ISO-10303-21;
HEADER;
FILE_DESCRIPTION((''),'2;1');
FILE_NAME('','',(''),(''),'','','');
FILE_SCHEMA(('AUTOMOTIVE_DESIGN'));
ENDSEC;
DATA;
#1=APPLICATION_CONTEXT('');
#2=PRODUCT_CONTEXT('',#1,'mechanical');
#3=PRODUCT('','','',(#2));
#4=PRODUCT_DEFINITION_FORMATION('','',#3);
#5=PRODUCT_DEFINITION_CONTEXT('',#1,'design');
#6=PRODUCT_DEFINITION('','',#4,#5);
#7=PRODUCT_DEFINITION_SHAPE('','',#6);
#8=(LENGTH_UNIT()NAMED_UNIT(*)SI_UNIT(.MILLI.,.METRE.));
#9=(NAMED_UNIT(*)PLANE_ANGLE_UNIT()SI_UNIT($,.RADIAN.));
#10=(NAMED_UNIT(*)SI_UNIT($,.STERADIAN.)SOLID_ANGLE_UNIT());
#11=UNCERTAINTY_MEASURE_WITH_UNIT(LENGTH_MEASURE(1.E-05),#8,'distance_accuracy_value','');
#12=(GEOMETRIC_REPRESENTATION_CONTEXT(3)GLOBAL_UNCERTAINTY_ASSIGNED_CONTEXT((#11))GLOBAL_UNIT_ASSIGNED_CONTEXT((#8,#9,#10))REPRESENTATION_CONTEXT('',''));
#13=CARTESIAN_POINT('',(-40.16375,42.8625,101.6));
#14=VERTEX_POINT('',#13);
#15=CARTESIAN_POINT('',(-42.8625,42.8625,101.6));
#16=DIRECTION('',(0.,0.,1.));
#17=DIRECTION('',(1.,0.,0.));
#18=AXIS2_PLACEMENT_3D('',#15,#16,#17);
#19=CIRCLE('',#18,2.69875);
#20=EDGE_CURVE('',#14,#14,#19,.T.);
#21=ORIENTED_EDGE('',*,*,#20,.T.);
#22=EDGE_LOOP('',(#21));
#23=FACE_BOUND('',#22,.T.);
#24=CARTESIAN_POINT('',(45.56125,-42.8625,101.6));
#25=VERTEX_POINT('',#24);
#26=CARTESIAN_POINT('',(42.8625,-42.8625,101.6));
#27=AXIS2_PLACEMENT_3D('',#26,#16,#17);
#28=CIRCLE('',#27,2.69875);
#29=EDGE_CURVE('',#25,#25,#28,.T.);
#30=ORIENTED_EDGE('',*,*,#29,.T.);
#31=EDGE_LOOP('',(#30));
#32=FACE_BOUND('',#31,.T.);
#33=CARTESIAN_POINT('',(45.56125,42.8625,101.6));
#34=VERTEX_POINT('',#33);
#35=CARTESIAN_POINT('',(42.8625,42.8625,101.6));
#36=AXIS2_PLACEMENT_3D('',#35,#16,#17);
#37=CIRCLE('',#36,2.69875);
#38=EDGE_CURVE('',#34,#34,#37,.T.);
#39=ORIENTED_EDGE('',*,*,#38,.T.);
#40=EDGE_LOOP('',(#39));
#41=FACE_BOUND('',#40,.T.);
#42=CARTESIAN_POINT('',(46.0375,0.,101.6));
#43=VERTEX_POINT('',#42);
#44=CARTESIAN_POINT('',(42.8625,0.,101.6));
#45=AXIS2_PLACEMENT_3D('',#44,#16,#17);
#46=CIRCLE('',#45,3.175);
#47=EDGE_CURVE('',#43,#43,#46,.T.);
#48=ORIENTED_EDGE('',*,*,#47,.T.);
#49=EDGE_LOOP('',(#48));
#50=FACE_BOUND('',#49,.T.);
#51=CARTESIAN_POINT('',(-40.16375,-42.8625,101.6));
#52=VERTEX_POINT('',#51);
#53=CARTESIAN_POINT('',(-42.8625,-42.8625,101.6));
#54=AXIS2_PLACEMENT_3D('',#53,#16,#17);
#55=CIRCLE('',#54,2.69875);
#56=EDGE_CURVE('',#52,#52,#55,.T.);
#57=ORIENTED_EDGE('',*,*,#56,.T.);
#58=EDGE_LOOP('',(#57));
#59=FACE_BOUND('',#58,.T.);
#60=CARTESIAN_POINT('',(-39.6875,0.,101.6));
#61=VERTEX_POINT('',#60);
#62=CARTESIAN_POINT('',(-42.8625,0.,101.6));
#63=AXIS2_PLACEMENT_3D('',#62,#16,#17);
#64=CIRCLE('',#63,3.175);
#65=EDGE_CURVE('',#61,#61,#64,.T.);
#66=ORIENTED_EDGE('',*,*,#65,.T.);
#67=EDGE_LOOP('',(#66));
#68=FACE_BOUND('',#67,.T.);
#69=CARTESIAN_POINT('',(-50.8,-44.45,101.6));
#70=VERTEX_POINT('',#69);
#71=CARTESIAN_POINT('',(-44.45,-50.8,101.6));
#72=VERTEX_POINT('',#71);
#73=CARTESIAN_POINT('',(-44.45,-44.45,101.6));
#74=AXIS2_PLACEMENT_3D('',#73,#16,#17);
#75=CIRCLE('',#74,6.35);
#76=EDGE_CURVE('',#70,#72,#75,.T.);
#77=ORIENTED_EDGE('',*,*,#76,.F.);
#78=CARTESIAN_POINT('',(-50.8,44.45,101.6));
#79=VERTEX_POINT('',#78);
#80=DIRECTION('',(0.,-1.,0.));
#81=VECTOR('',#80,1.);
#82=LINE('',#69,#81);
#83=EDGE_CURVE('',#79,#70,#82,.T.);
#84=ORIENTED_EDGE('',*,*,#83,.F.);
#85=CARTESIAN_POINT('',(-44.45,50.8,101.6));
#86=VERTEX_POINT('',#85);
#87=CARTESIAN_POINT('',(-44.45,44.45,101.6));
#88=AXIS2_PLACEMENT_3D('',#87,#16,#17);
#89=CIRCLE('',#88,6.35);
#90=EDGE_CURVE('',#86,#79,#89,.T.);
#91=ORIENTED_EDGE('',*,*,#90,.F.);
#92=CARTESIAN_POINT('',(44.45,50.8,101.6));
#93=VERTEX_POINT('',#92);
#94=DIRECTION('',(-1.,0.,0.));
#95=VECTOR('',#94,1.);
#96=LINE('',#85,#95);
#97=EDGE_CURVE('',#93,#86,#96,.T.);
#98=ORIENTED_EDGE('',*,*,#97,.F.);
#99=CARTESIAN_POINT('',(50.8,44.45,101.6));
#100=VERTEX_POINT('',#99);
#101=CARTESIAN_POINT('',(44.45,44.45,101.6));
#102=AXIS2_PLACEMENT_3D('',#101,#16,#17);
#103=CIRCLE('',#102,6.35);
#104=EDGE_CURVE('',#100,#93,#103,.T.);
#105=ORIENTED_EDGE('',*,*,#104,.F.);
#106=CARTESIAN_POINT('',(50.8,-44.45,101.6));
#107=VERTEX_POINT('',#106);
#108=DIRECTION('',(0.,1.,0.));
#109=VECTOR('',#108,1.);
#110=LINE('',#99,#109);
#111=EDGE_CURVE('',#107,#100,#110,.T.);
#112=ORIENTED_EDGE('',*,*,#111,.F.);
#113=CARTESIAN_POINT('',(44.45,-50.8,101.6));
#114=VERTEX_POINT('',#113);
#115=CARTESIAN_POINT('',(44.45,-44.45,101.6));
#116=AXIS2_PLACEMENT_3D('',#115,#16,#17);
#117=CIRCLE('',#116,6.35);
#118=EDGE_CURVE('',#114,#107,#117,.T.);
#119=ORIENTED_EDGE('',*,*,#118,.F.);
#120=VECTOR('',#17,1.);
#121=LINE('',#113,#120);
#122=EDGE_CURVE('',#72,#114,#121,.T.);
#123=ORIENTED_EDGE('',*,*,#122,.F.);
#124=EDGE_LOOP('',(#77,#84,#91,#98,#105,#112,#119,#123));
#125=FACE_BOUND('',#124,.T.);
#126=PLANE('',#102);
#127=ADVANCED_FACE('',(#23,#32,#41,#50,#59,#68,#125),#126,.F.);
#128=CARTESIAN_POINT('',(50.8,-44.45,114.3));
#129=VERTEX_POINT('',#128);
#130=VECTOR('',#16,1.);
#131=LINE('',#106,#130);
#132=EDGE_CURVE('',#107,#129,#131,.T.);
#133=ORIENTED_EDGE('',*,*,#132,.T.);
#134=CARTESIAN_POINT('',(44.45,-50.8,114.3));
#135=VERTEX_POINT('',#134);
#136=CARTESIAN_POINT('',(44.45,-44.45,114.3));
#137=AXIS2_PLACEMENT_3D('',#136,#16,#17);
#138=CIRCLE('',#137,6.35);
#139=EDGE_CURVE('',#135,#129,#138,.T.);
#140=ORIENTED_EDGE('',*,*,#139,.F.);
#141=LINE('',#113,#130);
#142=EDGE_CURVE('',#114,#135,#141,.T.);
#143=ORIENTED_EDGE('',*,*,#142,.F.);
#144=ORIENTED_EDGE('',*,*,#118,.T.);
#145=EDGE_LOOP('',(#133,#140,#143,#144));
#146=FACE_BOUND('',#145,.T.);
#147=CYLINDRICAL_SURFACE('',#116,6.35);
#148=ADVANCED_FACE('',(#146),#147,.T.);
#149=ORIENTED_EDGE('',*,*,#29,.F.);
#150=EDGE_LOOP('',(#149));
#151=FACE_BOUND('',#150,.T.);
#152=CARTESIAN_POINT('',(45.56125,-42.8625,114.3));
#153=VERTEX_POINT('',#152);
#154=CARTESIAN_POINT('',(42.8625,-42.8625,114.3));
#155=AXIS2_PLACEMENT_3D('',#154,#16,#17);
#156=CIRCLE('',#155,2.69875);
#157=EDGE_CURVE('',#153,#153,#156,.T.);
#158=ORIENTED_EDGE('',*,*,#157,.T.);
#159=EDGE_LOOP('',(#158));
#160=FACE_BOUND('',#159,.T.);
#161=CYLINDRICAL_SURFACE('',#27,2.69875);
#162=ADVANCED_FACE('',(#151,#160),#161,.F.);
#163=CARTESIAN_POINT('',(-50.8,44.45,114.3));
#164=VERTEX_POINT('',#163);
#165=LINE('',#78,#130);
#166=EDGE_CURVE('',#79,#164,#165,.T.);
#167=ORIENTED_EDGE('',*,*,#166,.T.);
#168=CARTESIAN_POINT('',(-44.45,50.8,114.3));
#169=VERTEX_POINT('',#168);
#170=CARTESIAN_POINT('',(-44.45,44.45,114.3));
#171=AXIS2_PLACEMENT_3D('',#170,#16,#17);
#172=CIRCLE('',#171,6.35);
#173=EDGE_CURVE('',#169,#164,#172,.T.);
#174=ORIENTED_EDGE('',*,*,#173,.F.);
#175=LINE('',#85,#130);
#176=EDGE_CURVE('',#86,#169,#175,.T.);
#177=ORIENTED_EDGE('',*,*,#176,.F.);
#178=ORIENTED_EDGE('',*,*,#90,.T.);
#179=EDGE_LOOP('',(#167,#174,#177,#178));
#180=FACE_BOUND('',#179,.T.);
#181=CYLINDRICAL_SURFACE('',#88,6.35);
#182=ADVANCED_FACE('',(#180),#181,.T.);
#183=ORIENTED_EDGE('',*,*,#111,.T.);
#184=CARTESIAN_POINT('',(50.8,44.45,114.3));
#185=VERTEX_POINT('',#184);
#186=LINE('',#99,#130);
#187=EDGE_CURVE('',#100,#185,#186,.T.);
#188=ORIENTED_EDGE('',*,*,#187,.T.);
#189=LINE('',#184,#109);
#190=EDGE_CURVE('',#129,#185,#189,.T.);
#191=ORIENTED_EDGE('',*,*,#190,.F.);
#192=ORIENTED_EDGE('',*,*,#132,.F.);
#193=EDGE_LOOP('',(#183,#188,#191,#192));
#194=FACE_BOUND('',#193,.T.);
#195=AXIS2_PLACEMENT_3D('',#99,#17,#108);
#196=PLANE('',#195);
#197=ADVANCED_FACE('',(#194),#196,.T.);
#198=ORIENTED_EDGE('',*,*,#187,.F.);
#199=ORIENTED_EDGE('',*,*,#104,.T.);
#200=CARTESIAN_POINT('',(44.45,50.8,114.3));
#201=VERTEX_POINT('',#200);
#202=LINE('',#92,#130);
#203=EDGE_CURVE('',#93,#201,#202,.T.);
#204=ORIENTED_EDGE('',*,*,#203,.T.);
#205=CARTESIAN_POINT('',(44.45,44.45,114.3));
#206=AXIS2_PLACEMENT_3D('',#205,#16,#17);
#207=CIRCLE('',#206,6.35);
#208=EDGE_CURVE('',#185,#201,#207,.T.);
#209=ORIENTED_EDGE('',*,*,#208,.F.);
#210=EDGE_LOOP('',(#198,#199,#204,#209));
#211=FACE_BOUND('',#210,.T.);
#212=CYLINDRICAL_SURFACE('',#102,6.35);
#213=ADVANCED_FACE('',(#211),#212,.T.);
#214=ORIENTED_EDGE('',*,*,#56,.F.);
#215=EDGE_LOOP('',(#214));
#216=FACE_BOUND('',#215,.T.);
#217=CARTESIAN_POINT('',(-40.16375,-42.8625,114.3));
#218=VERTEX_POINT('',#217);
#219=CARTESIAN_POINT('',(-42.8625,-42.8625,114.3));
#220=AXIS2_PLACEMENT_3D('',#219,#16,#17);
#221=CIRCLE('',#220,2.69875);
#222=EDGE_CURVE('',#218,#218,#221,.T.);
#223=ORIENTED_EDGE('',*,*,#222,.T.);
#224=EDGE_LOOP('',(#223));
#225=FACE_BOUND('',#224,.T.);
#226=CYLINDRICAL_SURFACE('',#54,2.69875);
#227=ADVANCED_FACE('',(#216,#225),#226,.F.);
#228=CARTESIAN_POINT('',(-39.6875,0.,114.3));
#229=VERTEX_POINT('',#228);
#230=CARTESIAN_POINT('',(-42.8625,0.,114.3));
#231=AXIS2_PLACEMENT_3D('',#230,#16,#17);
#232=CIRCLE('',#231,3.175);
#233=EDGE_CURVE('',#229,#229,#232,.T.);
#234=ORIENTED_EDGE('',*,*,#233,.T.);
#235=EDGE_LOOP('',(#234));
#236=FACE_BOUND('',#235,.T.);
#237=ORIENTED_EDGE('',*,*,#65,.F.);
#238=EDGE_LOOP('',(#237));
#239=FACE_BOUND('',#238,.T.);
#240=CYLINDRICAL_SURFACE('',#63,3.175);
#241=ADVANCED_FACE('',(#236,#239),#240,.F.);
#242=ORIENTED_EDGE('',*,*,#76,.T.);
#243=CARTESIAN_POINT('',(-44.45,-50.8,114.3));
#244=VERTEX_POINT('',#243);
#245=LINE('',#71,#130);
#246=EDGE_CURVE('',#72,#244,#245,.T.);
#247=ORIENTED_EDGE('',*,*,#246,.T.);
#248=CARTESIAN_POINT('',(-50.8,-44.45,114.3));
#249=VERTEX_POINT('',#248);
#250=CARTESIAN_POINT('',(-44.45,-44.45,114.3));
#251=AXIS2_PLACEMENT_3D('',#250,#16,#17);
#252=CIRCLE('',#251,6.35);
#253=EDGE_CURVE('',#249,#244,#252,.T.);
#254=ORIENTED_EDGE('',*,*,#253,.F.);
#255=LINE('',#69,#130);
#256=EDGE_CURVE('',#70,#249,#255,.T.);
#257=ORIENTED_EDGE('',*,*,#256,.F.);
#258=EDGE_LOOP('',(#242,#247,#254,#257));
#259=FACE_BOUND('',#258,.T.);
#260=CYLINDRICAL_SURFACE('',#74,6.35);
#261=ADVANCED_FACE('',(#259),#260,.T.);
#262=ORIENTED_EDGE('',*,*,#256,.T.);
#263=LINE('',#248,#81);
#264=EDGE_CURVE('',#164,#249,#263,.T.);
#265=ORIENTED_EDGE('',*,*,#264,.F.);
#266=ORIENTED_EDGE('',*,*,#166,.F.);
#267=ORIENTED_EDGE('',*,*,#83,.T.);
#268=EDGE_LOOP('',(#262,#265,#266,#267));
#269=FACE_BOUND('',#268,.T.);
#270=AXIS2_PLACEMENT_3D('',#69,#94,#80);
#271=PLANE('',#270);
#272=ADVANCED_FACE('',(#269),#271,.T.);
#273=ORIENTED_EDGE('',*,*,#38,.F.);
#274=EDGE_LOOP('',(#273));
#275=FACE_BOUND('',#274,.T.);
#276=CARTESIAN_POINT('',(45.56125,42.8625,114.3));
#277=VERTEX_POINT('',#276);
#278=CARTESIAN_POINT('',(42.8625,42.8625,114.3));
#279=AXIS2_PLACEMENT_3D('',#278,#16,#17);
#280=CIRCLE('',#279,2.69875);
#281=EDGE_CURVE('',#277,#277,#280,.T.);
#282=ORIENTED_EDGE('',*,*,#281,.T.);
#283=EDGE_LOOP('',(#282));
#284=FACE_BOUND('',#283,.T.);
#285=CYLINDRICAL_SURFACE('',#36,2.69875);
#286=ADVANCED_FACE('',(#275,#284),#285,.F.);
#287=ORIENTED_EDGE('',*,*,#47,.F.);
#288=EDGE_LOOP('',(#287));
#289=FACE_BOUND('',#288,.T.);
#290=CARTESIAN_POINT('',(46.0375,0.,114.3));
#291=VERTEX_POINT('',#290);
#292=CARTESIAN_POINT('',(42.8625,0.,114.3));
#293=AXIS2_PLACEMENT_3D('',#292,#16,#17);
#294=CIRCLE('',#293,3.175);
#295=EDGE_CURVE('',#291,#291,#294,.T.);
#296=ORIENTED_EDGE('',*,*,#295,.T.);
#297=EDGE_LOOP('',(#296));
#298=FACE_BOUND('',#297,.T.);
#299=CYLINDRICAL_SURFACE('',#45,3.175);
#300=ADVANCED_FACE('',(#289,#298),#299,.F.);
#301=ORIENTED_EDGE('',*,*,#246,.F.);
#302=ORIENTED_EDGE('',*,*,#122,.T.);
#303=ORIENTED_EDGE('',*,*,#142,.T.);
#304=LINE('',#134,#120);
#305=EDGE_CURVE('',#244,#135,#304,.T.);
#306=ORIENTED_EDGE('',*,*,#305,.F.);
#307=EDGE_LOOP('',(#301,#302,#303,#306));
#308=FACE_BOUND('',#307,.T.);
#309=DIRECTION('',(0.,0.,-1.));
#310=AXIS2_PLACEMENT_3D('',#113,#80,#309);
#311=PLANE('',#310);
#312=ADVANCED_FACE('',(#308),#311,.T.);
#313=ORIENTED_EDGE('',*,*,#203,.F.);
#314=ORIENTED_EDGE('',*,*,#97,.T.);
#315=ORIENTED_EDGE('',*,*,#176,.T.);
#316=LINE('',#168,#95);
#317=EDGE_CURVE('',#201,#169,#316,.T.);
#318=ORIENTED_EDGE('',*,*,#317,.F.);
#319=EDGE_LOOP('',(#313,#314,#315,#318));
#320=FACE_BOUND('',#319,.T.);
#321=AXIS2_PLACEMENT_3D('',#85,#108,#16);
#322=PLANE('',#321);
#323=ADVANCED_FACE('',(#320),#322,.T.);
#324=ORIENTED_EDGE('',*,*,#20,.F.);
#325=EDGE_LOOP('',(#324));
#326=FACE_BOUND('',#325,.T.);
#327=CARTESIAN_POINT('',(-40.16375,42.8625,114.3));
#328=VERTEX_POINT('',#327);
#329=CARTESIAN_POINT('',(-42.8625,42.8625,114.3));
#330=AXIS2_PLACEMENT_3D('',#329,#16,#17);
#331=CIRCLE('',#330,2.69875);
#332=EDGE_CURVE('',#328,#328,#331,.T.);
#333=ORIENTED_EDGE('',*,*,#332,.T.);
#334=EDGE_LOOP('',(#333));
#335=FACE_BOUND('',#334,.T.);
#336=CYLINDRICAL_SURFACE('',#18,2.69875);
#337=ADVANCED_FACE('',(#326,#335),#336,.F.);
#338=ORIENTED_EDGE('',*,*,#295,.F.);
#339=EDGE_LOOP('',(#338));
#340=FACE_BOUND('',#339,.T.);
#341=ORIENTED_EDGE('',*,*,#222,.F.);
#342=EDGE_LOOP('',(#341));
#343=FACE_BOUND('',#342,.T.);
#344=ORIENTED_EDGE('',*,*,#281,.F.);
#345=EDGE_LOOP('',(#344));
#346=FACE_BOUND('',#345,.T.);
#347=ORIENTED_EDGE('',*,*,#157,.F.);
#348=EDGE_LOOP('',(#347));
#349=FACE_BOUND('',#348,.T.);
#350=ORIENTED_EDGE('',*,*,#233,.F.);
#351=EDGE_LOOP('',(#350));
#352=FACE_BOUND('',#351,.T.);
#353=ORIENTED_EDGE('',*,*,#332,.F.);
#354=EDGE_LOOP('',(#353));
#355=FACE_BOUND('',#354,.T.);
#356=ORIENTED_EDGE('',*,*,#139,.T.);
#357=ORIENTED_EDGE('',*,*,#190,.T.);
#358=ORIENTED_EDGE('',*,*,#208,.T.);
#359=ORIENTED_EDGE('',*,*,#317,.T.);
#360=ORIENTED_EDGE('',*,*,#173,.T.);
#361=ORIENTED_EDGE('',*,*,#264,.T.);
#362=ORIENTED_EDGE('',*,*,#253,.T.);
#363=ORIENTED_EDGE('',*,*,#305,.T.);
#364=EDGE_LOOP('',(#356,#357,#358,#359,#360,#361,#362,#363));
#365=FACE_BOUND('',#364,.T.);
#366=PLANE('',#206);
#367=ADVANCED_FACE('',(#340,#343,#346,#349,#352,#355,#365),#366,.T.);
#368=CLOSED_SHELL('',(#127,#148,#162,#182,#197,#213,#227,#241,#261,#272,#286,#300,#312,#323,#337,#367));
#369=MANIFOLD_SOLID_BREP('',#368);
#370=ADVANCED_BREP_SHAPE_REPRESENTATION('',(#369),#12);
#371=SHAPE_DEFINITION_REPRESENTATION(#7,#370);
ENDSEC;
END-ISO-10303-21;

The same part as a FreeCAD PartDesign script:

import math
import FreeCAD as App
import Part
import Sketcher
Q = App.Units.Quantity

doc = App.newDocument("Part")
body = doc.addObject("PartDesign::Body", "Body")

sketch1 = body.newObject("Sketcher::SketchObject", "Sketch")
sketch1.AttachmentSupport = (doc.getObject("XY_Plane"), [""])
sketch1.MapMode = "FlatFace"
sketch1.AttachmentOffset = App.Placement(App.Vector(0, 0, 4.5 * 25.4), App.Rotation())
sketch1.addGeometry(Part.LineSegment(App.Vector(50.8, -44.45, 0), App.Vector(50.8, 44.45, 0)), False)
sketch1.addGeometry(Part.ArcOfCircle(Part.Circle(App.Vector(44.45, 44.45, 0), App.Vector(0, 0, 1), 6.35), math.radians(0), math.radians(90)), False)
sketch1.addGeometry(Part.LineSegment(App.Vector(44.45, 50.8, 0), App.Vector(-44.45, 50.8, 0)), False)
sketch1.addGeometry(Part.ArcOfCircle(Part.Circle(App.Vector(-44.45, 44.45, 0), App.Vector(0, 0, 1), 6.35), math.radians(90), math.radians(180)), False)
sketch1.addGeometry(Part.LineSegment(App.Vector(-50.8, 44.45, 0), App.Vector(-50.8, -44.45, 0)), False)
sketch1.addGeometry(Part.ArcOfCircle(Part.Circle(App.Vector(-44.45, -44.45, 0), App.Vector(0, 0, 1), 6.35), math.radians(180), math.radians(270)), False)
sketch1.addGeometry(Part.LineSegment(App.Vector(-44.45, -50.8, 0), App.Vector(44.45, -50.8, 0)), False)
sketch1.addGeometry(Part.ArcOfCircle(Part.Circle(App.Vector(44.45, -44.45, 0), App.Vector(0, 0, 1), 6.35), math.radians(-90), math.radians(0)), False)
sketch1.addGeometry(Part.Circle(App.Vector(42.8625, -42.8625, 0), App.Vector(0, 0, 1), 2.69875), False)
sketch1.addGeometry(Part.Circle(App.Vector(-42.8625, -42.8625, 0), App.Vector(0, 0, 1), 2.69875), False)
sketch1.addGeometry(Part.Circle(App.Vector(42.8625, 0, 0), App.Vector(0, 0, 1), 3.175), False)
sketch1.addGeometry(Part.Circle(App.Vector(42.8625, 42.8625, 0), App.Vector(0, 0, 1), 2.69875), False)
sketch1.addGeometry(Part.Circle(App.Vector(-42.8625, 0, 0), App.Vector(0, 0, 1), 3.175), False)
sketch1.addGeometry(Part.Circle(App.Vector(-42.8625, 42.8625, 0), App.Vector(0, 0, 1), 2.69875), False)
sketch1.addConstraint(Sketcher.Constraint("Tangent", 0, 2, 1, 1))
sketch1.addConstraint(Sketcher.Constraint("Tangent", 1, 2, 2, 1))
sketch1.addConstraint(Sketcher.Constraint("Tangent", 2, 2, 3, 1))
sketch1.addConstraint(Sketcher.Constraint("Tangent", 3, 2, 4, 1))
sketch1.addConstraint(Sketcher.Constraint("Tangent", 4, 2, 5, 1))
sketch1.addConstraint(Sketcher.Constraint("Tangent", 5, 2, 6, 1))
sketch1.addConstraint(Sketcher.Constraint("Tangent", 6, 2, 7, 1))
sketch1.addConstraint(Sketcher.Constraint("Tangent", 7, 2, 0, 1))
sketch1.addConstraint(Sketcher.Constraint("Vertical", 0))
sketch1.addConstraint(Sketcher.Constraint("Horizontal", 2))
sketch1.addConstraint(Sketcher.Constraint("Vertical", 4))
sketch1.addConstraint(Sketcher.Constraint("Horizontal", 6))
sketch1.addConstraint(Sketcher.Constraint("Equal", 1, 3))
sketch1.addConstraint(Sketcher.Constraint("Equal", 3, 5))
sketch1.addConstraint(Sketcher.Constraint("Equal", 5, 7))
sketch1.addConstraint(Sketcher.Constraint("Equal", 8, 9))
sketch1.addConstraint(Sketcher.Constraint("Equal", 9, 11))
sketch1.addConstraint(Sketcher.Constraint("Equal", 10, 12))
sketch1.addConstraint(Sketcher.Constraint("Equal", 11, 13))
sketch1.addConstraint(Sketcher.Constraint("Symmetric", 1, 3, 5, 3, -1, 1))
sketch1.addConstraint(Sketcher.Constraint("Symmetric", 9, 3, 11, 3, -1, 1))
sketch1.addConstraint(Sketcher.Constraint("Symmetric", 10, 3, 12, 3, -1, 1))
sketch1.addConstraint(Sketcher.Constraint("Symmetric", 8, 3, 13, 3, -1, 1))
sketch1.addConstraint(Sketcher.Constraint("Symmetric", 8, 3, 9, 3, -2))
sketch1.addConstraint(Sketcher.Constraint("PointOnObject", 10, 3, -1))
sketch1.addConstraint(Sketcher.Constraint("Vertical", 8, 3, 10, 3))
sketch1.addConstraint(Sketcher.Constraint("Equal", 6, 0))
sketch1.addConstraint(Sketcher.Constraint("Diameter", 10, Q("0.25 in")))
sketch1.addConstraint(Sketcher.Constraint("Radius", 1, Q("0.25 in")))
sketch1.addConstraint(Sketcher.Constraint("DistanceX", 2, 2, 2, 1, Q("3.5 in")))
sketch1.addConstraint(Sketcher.Constraint("Diameter", 8, Q("0.2125 in")))
sketch1.addConstraint(Sketcher.Constraint("DistanceX", -1, 1, 8, 3, Q("1.6875 in")))
sketch1.addConstraint(Sketcher.Constraint("DistanceY", 8, 3, -1, 1, Q("1.6875 in")))
pad1 = body.newObject("PartDesign::Pad", "Pad")
pad1.Profile = sketch1
pad1.Length = Q("0.5 in")
pad1.Reversed = True

doc.recompute()
